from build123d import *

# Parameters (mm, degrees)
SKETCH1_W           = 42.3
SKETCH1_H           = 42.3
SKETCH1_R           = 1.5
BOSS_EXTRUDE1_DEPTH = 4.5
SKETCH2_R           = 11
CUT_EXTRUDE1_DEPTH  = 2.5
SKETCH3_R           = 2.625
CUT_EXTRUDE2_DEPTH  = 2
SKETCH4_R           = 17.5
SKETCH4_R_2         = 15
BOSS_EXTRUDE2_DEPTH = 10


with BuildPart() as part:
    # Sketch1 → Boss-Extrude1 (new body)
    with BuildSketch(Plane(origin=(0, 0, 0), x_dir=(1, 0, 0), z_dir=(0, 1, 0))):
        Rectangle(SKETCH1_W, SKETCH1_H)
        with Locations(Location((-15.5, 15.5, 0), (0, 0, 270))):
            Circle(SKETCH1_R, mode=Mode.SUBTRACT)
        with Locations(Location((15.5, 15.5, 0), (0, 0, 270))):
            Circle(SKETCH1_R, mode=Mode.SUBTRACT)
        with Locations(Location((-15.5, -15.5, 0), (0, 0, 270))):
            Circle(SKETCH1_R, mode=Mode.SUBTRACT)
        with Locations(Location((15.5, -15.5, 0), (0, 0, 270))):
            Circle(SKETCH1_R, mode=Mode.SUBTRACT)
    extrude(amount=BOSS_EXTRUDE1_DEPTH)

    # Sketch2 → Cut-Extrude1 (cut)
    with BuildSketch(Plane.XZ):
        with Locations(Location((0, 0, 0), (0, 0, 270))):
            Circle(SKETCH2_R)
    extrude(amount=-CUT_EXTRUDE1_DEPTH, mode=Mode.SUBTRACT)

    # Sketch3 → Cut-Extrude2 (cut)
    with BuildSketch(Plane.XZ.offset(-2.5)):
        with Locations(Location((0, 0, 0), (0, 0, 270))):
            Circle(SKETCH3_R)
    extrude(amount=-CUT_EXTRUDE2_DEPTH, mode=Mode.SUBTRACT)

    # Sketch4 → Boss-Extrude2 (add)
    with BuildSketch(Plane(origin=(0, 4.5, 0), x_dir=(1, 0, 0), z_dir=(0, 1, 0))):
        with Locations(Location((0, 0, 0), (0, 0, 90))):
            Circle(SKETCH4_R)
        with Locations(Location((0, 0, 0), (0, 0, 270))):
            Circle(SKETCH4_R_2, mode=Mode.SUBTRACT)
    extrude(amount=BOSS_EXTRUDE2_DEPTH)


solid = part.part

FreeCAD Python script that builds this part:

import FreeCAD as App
import Part
import Sketcher

V = App.Vector
Q = App.Units.Quantity


def add_polygon(sketch, points):
    """Adds a closed chain of lines whose ends are joined by coincident constraints."""
    first, n = sketch.GeometryCount, len(points)
    for a, b in zip(points, points[1:] + points[:1]):
        sketch.addGeometry(Part.LineSegment(App.Vector(*a, 0), App.Vector(*b, 0)), False)
    for i in range(n):
        sketch.addConstraint(Sketcher.Constraint("Coincident", first + i, 2, first + (i + 1) % n, 1))

doc = App.newDocument("Part")
params = doc.addObject("Spreadsheet::Sheet", "Params")
for row, (alias, value) in enumerate([
    ("sketch1_diameter", "3 mm"),
    ("sketch1_width", "42.3 mm"),
    ("pad1_length", "4.5 mm"),
    ("sketch2_diameter", "22 mm"),
    ("pocket1_length", "2.5 mm"),
    ("sketch3_diameter", "5.25 mm"),
    ("pocket2_length", "2 mm"),
    ("sketch4_diameter", "35 mm"),
    ("sketch4_diameter2", "30 mm"),
    ("pad2_length", "10 mm"),
], start=1):
    params.set(f"A{row}", alias)
    params.set(f"B{row}", "=" + value)
    params.setAlias(f"B{row}", alias)

body = doc.addObject("PartDesign::Body", "Body")

# Sketch on XZ plane
sketch1 = body.newObject("Sketcher::SketchObject", "Sketch")
sketch1.AttachmentSupport = (doc.getObject("XZ_Plane"), [""])
sketch1.MapMode = "FlatFace"
add_polygon(sketch1, [(-21.1, -21.1), (-21.1, 21.1), (21.1, 21.1), (21.1, -21.1)])  # lines 0-3
sketch1.addGeometry(Part.Circle(V(-15.5, 15.5, 0), V(0, 0, 1), 1.5), False)  # 4
sketch1.addGeometry(Part.Circle(V(15.5, 15.5, 0), V(0, 0, 1), 1.5), False)  # 5
sketch1.addGeometry(Part.Circle(V(-15.5, -15.5, 0), V(0, 0, 1), 1.5), False)  # 6
sketch1.addGeometry(Part.Circle(V(15.5, -15.5, 0), V(0, 0, 1), 1.5), False)  # 7
sketch1.addConstraint(Sketcher.Constraint("Vertical", 0))
sketch1.addConstraint(Sketcher.Constraint("Horizontal", 1))
sketch1.addConstraint(Sketcher.Constraint("Vertical", 2))
sketch1.addConstraint(Sketcher.Constraint("Horizontal", 3))
sketch1.addConstraint(Sketcher.Constraint("Equal", 4, 5))
sketch1.addConstraint(Sketcher.Constraint("Equal", 5, 6))
sketch1.addConstraint(Sketcher.Constraint("Equal", 6, 7))
sketch1.addConstraint(Sketcher.Constraint("Symmetric", 5, 3, 6, 3, -1, 1))
sketch1.addConstraint(Sketcher.Constraint("Symmetric", 4, 3, 7, 3, -1, 1))
sketch1.addConstraint(Sketcher.Constraint("Symmetric", 0, 2, 2, 2, -1, 1))
sketch1.addConstraint(Sketcher.Constraint("Symmetric", 4, 3, 5, 3, -2))
sketch1.addConstraint(Sketcher.Constraint("Equal", 3, 0))
sketch1.addConstraint(Sketcher.Constraint("Diameter", 4, Q("3 mm")))
sketch1.addConstraint(Sketcher.Constraint("DistanceX", 1, 1, 1, 2, Q("42.3 mm")))
sketch1.addConstraint(Sketcher.Constraint("DistanceX", 4, 3, 5, 3, Q("31 mm")))
sketch1.addConstraint(Sketcher.Constraint("DistanceY", 6, 3, 4, 3, Q("31 mm")))
sketch1.setExpression("Constraints[16]", "Params.sketch1_diameter")
sketch1.setExpression("Constraints[17]", "Params.sketch1_width")
pad1 = body.newObject("PartDesign::Pad", "Pad")
pad1.Profile = sketch1
pad1.setExpression("Length", "Params.pad1_length")
pad1.Reversed = True

# Sketch on XZ plane
sketch2 = body.newObject("Sketcher::SketchObject", "Sketch001")
sketch2.AttachmentSupport = (doc.getObject("XZ_Plane"), [""])
sketch2.MapMode = "FlatFace"
sketch2.addGeometry(Part.Circle(V(0, 0, 0), V(0, 0, 1), 11), False)
sketch2.addConstraint(Sketcher.Constraint("Coincident", 0, 3, -1, 1))
sketch2.addConstraint(Sketcher.Constraint("Diameter", 0, Q("22 mm")))
sketch2.setExpression("Constraints[1]", "Params.sketch2_diameter")
pocket1 = body.newObject("PartDesign::Pocket", "Pocket")
pocket1.Profile = sketch2
pocket1.setExpression("Length", "Params.pocket1_length")

# Sketch on XZ plane
sketch3 = body.newObject("Sketcher::SketchObject", "Sketch002")
sketch3.AttachmentSupport = (doc.getObject("XZ_Plane"), [""])
sketch3.MapMode = "FlatFace"
sketch3.AttachmentOffset = App.Placement(V(0, 0, -2.5), App.Rotation())
sketch3.addGeometry(Part.Circle(V(0, 0, 0), V(0, 0, 1), 2.6), False)
sketch3.addConstraint(Sketcher.Constraint("Coincident", 0, 3, -1, 1))
sketch3.addConstraint(Sketcher.Constraint("Diameter", 0, Q("5.25 mm")))
sketch3.setExpression("Constraints[1]", "Params.sketch3_diameter")
pocket2 = body.newObject("PartDesign::Pocket", "Pocket001")
pocket2.Profile = sketch3
pocket2.setExpression("Length", "Params.pocket2_length")

# Sketch on XZ plane
sketch4 = body.newObject("Sketcher::SketchObject", "Sketch003")
sketch4.AttachmentSupport = (doc.getObject("XZ_Plane"), [""])
sketch4.MapMode = "FlatFace"
sketch4.AttachmentOffset = App.Placement(V(0, 0, -4.5), App.Rotation())
sketch4.addGeometry(Part.Circle(V(0, 0, 0), V(0, 0, 1), 18), False)
sketch4.addGeometry(Part.Circle(V(0, 0, 0), V(0, 0, 1), 15), False)
sketch4.addConstraint(Sketcher.Constraint("Coincident", 0, 3, -1, 1))
sketch4.addConstraint(Sketcher.Constraint("Coincident", 1, 3, -1, 1))
sketch4.addConstraint(Sketcher.Constraint("Diameter", 0, Q("35 mm")))
sketch4.addConstraint(Sketcher.Constraint("Diameter", 1, Q("30 mm")))
sketch4.setExpression("Constraints[2]", "Params.sketch4_diameter")
sketch4.setExpression("Constraints[3]", "Params.sketch4_diameter2")
pad2 = body.newObject("PartDesign::Pad", "Pad001")
pad2.Profile = sketch4
pad2.setExpression("Length", "Params.pad2_length")
pad2.Reversed = True

doc.recompute()
